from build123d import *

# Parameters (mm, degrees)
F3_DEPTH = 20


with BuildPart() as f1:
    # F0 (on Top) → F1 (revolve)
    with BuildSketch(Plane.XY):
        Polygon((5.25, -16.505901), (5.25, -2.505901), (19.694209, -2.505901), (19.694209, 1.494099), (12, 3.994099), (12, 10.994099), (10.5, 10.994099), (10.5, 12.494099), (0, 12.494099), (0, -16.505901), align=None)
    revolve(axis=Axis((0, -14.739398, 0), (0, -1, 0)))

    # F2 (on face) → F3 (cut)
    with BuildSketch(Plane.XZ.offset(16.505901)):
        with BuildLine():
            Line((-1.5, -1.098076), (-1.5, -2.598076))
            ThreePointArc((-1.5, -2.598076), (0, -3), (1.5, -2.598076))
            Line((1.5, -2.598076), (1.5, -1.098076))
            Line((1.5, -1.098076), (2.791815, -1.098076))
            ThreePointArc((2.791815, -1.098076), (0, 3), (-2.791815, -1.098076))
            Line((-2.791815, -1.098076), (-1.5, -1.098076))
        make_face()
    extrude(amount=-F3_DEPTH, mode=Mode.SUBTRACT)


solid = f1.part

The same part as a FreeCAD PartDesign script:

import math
import FreeCAD as App
import Part
import Sketcher
Q = App.Units.Quantity

doc = App.newDocument("Part")
body = doc.addObject("PartDesign::Body", "Body")

# Sketch on XY plane
sketch1 = body.newObject("Sketcher::SketchObject", "Sketch")
sketch1.AttachmentSupport = (doc.getObject("XY_Plane"), [""])
sketch1.MapMode = "FlatFace"
sketch1.addGeometry(Part.LineSegment(App.Vector(5.2, -16.5, 0), App.Vector(5.2, -2.5, 0)), False)
sketch1.addGeometry(Part.LineSegment(App.Vector(5.2, -2.5, 0), App.Vector(19.7, -2.5, 0)), False)
sketch1.addGeometry(Part.LineSegment(App.Vector(19.7, -2.5, 0), App.Vector(19.7, 1.5, 0)), False)
sketch1.addGeometry(Part.LineSegment(App.Vector(19.7, 1.5, 0), App.Vector(12, 4, 0)), False)
sketch1.addGeometry(Part.LineSegment(App.Vector(12, 4, 0), App.Vector(12, 11, 0)), False)
sketch1.addGeometry(Part.LineSegment(App.Vector(12, 11, 0), App.Vector(10.5, 11, 0)), False)
sketch1.addGeometry(Part.LineSegment(App.Vector(10.5, 11, 0), App.Vector(10.5, 12.5, 0)), False)
sketch1.addGeometry(Part.LineSegment(App.Vector(10.5, 12.5, 0), App.Vector(0, 12.5, 0)), False)
sketch1.addGeometry(Part.LineSegment(App.Vector(0, 12.5, 0), App.Vector(0, -16.5, 0)), False)
sketch1.addGeometry(Part.LineSegment(App.Vector(0, -16.5, 0), App.Vector(5.2, -16.5, 0)), False)
sketch1.addConstraint(Sketcher.Constraint("Coincident", 0, 2, 1, 1))
sketch1.addConstraint(Sketcher.Constraint("Coincident", 1, 2, 2, 1))
sketch1.addConstraint(Sketcher.Constraint("Coincident", 2, 2, 3, 1))
sketch1.addConstraint(Sketcher.Constraint("Coincident", 3, 2, 4, 1))
sketch1.addConstraint(Sketcher.Constraint("Coincident", 4, 2, 5, 1))
sketch1.addConstraint(Sketcher.Constraint("Coincident", 5, 2, 6, 1))
sketch1.addConstraint(Sketcher.Constraint("Coincident", 6, 2, 7, 1))
sketch1.addConstraint(Sketcher.Constraint("Coincident", 7, 2, 8, 1))
sketch1.addConstraint(Sketcher.Constraint("Coincident", 8, 2, 9, 1))
sketch1.addConstraint(Sketcher.Constraint("Coincident", 9, 2, 0, 1))
sketch1.addConstraint(Sketcher.Constraint("Vertical", 0))
sketch1.addConstraint(Sketcher.Constraint("Horizontal", 1))
sketch1.addConstraint(Sketcher.Constraint("Vertical", 2))
sketch1.addConstraint(Sketcher.Constraint("Vertical", 4))
sketch1.addConstraint(Sketcher.Constraint("Horizontal", 5))
sketch1.addConstraint(Sketcher.Constraint("Vertical", 6))
sketch1.addConstraint(Sketcher.Constraint("Horizontal", 7))
sketch1.addConstraint(Sketcher.Constraint("Vertical", 8))
sketch1.addConstraint(Sketcher.Constraint("Horizontal", 9))
sketch1.addConstraint(Sketcher.Constraint("PointOnObject", 7, 2, -2))
sketch1.addConstraint(Sketcher.Constraint("Equal", 5, 6))
sketch1.addConstraint(Sketcher.Constraint("DistanceY", 0, 1, 0, 2, Q("14 mm")))
sketch1.addConstraint(Sketcher.Constraint("DistanceY", 2, 1, 2, 2, Q("4 mm")))
sketch1.addConstraint(Sketcher.Constraint("DistanceY", 4, 1, 4, 2, Q("7 mm")))
sketch1.addConstraint(Sketcher.Constraint("DistanceY", 8, 2, 8, 1, Q("29 mm")))
sketch1.addConstraint(Sketcher.Constraint("Angle", 3, Q("162 deg")))
sketch1.addConstraint(Sketcher.Constraint("DistanceX", 5, 2, 5, 1, Q("1.5 mm")))
sketch1.addConstraint(Sketcher.Constraint("DistanceX", 7, 2, 7, 1, Q("10.5 mm")))
sketch1.addConstraint(Sketcher.Constraint("DistanceX", 9, 1, 9, 2, Q("5.25 mm")))
sketch1.addConstraint(Sketcher.Constraint("DistanceY", 0, 2, -1, 1, Q("2.505901 mm")))
revolution = body.newObject("PartDesign::Revolution", "Revolution")
revolution.Profile = sketch1
revolution.ReferenceAxis = (sketch1, ["V_Axis"])
revolution.Angle = 360

# Sketch on XZ plane
sketch2 = body.newObject("Sketcher::SketchObject", "Sketch001")
sketch2.AttachmentSupport = (doc.getObject("XZ_Plane"), [""])
sketch2.MapMode = "FlatFace"
sketch2.AttachmentOffset = App.Placement(App.Vector(0, 0, 16.505901), App.Rotation())
sketch2.addGeometry(Part.LineSegment(App.Vector(-1.5, -1.1, 0), App.Vector(-1.5, -2.6, 0)), False)
sketch2.addGeometry(Part.ArcOfCircle(Part.Circle(App.Vector(0, 0, 0), App.Vector(0, 0, 1), 3), math.radians(-120), math.radians(-60)), False)
sketch2.addGeometry(Part.LineSegment(App.Vector(1.5, -2.6, 0), App.Vector(1.5, -1.1, 0)), False)
sketch2.addGeometry(Part.LineSegment(App.Vector(1.5, -1.1, 0), App.Vector(2.8, -1.1, 0)), False)
sketch2.addGeometry(Part.ArcOfCircle(Part.Circle(App.Vector(0, 0, 0), App.Vector(0, 0, 1), 3), math.radians(-21), math.radians(201)), False)
sketch2.addGeometry(Part.LineSegment(App.Vector(-2.8, -1.1, 0), App.Vector(-1.5, -1.1, 0)), False)
sketch2.addConstraint(Sketcher.Constraint("Coincident", 0, 2, 1, 1))
sketch2.addConstraint(Sketcher.Constraint("Coincident", 1, 2, 2, 1))
sketch2.addConstraint(Sketcher.Constraint("Coincident", 2, 2, 3, 1))
sketch2.addConstraint(Sketcher.Constraint("Coincident", 3, 2, 4, 1))
sketch2.addConstraint(Sketcher.Constraint("Coincident", 4, 2, 5, 1))
sketch2.addConstraint(Sketcher.Constraint("Coincident", 5, 2, 0, 1))
sketch2.addConstraint(Sketcher.Constraint("Vertical", 0))
sketch2.addConstraint(Sketcher.Constraint("Vertical", 2))
sketch2.addConstraint(Sketcher.Constraint("Horizontal", 3))
sketch2.addConstraint(Sketcher.Constraint("Horizontal", 5))
sketch2.addConstraint(Sketcher.Constraint("Coincident", 1, 3, -1, 1))
sketch2.addConstraint(Sketcher.Constraint("Coincident", 4, 3, -1, 1))
sketch2.addConstraint(Sketcher.Constraint("Equal", 1, 4))
sketch2.addConstraint(Sketcher.Constraint("Symmetric", 2, 2, 5, 2, -2))
sketch2.addConstraint(Sketcher.Constraint("Radius", 1, Q("2.999999 mm")))
sketch2.addConstraint(Sketcher.Constraint("DistanceY", 0, 2, 0, 1, Q("1.5 mm")))
sketch2.addConstraint(Sketcher.Constraint("DistanceX", 0, 2, 1, 2, Q("3 mm")))
pocket1 = body.newObject("PartDesign::Pocket", "Pocket")
pocket1.Profile = sketch2
pocket1.Length = 20

doc.recompute()
